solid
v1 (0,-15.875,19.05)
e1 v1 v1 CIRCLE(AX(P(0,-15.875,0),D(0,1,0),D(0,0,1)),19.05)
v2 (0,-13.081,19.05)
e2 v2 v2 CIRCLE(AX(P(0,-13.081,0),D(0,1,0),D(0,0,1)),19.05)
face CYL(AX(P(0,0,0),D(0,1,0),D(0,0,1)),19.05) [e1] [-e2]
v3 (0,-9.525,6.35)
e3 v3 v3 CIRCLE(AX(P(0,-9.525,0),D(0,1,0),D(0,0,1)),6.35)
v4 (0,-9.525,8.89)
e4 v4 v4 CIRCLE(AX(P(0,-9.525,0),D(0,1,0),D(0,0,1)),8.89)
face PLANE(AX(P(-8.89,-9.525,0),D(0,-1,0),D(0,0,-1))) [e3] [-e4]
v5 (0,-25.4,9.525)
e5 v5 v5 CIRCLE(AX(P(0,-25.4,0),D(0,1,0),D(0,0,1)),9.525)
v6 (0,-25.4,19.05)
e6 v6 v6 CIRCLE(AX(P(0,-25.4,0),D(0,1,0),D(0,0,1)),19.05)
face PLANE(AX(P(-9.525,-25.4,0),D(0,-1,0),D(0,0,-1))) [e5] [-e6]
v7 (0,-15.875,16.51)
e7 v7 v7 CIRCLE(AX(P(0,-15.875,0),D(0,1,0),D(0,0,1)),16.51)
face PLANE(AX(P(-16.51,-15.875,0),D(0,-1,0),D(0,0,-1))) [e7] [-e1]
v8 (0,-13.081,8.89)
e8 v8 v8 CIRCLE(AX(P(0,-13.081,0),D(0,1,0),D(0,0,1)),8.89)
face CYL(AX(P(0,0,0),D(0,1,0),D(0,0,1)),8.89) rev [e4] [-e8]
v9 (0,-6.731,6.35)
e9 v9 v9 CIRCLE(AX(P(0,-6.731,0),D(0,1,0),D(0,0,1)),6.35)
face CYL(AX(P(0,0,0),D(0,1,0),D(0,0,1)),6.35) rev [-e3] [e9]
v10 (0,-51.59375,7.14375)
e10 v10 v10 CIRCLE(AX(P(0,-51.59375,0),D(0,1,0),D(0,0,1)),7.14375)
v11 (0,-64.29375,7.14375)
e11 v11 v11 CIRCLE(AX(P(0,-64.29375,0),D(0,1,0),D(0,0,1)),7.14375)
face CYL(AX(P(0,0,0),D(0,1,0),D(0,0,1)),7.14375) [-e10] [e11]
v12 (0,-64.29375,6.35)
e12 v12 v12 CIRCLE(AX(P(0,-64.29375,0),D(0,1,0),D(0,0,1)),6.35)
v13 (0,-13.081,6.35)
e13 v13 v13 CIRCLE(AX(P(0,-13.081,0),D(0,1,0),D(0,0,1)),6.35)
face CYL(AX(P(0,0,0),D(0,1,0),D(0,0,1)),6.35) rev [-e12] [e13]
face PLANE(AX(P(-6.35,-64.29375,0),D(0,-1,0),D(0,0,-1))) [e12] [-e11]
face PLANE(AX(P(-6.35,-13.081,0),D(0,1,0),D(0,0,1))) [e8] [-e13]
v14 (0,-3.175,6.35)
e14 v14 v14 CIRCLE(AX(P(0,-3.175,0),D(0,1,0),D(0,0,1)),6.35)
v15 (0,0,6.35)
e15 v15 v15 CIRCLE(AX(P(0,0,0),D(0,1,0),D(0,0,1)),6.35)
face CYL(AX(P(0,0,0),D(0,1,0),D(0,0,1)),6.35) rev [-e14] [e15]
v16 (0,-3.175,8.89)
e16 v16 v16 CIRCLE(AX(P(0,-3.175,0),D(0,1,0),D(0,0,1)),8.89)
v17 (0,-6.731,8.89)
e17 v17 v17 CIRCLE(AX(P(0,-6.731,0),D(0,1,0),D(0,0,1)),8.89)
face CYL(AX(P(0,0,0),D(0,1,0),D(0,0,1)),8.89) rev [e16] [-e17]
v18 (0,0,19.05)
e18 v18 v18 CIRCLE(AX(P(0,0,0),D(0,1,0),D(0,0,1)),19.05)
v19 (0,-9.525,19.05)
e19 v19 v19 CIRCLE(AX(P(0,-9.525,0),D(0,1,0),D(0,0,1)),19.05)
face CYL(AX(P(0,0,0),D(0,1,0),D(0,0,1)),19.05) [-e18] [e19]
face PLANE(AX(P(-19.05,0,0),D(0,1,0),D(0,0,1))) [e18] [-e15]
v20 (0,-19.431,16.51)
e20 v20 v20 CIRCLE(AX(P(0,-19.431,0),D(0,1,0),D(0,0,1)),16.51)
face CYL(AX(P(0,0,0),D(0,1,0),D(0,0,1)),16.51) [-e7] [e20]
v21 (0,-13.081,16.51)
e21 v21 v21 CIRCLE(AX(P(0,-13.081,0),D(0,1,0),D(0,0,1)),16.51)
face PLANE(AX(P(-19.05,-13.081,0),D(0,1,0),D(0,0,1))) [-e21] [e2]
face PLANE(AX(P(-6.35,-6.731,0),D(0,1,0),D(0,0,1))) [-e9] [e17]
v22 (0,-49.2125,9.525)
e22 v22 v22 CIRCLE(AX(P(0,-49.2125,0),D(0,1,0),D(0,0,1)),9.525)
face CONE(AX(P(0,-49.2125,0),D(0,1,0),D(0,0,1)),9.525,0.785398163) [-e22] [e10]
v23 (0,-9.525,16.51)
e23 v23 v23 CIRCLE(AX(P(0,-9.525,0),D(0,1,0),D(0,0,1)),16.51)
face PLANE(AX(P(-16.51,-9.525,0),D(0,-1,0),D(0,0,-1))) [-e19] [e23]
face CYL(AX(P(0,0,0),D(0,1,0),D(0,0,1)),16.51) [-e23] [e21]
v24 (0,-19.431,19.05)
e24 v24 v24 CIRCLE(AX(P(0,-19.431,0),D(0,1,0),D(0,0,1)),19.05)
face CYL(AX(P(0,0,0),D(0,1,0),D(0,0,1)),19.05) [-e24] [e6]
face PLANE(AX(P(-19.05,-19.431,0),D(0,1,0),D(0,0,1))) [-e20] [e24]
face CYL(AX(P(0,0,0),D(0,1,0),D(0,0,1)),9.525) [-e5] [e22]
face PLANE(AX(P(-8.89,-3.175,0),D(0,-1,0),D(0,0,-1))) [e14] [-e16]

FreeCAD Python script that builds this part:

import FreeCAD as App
import Part
import Sketcher
from FreeCAD import Vector
Q = App.Units.Quantity

doc = App.newDocument("Part")
body = doc.addObject("PartDesign::Body", "Body")

# Sketch on XY plane
sketch1 = body.newObject("Sketcher::SketchObject", "Sketch")
sketch1.AttachmentSupport = (doc.getObject("XY_Plane"), [""])
sketch1.MapMode = "FlatFace"
sketch1.addGeometry(Part.LineSegment(Vector(-6.3, -64.3, 0), Vector(-6.3, -13.1, 0)), False)
sketch1.addGeometry(Part.LineSegment(Vector(-6.3, -13.1, 0), Vector(-8.9, -13.1, 0)), False)
sketch1.addGeometry(Part.LineSegment(Vector(-8.9, -13.1, 0), Vector(-8.9, -9.5, 0)), False)
sketch1.addGeometry(Part.LineSegment(Vector(-8.9, -9.5, 0), Vector(-6.3, -9.5, 0)), False)
sketch1.addGeometry(Part.LineSegment(Vector(-6.3, -9.5, 0), Vector(-6.3, -6.7, 0)), False)
sketch1.addGeometry(Part.LineSegment(Vector(-6.3, -6.7, 0), Vector(-8.9, -6.7, 0)), False)
sketch1.addGeometry(Part.LineSegment(Vector(-8.9, -6.7, 0), Vector(-8.9, -3.2, 0)), False)
sketch1.addGeometry(Part.LineSegment(Vector(-8.9, -3.2, 0), Vector(-6.3, -3.2, 0)), False)
sketch1.addGeometry(Part.LineSegment(Vector(-6.3, -3.2, 0), Vector(-6.3, 0, 0)), False)
sketch1.addGeometry(Part.LineSegment(Vector(-6.3, 0, 0), Vector(-19.1, 0, 0)), False)
sketch1.addGeometry(Part.LineSegment(Vector(-19.1, 0, 0), Vector(-19.1, -9.5, 0)), False)
sketch1.addGeometry(Part.LineSegment(Vector(-19.1, -9.5, 0), Vector(-16.5, -9.5, 0)), False)
sketch1.addGeometry(Part.LineSegment(Vector(-16.5, -9.5, 0), Vector(-16.5, -13.1, 0)), False)
sketch1.addGeometry(Part.LineSegment(Vector(-16.5, -13.1, 0), Vector(-19.1, -13.1, 0)), False)
sketch1.addGeometry(Part.LineSegment(Vector(-19.1, -13.1, 0), Vector(-19.1, -15.9, 0)), False)
sketch1.addGeometry(Part.LineSegment(Vector(-19.1, -15.9, 0), Vector(-16.5, -15.9, 0)), False)
sketch1.addGeometry(Part.LineSegment(Vector(-16.5, -15.9, 0), Vector(-16.5, -19.4, 0)), False)
sketch1.addGeometry(Part.LineSegment(Vector(-16.5, -19.4, 0), Vector(-19.1, -19.4, 0)), False)
sketch1.addGeometry(Part.LineSegment(Vector(-19.1, -19.4, 0), Vector(-19.1, -25.4, 0)), False)
sketch1.addGeometry(Part.LineSegment(Vector(-19.1, -25.4, 0), Vector(-9.5, -25.4, 0)), False)
sketch1.addGeometry(Part.LineSegment(Vector(-9.5, -25.4, 0), Vector(-9.5, -49.2, 0)), False)
sketch1.addGeometry(Part.LineSegment(Vector(-9.5, -49.2, 0), Vector(-7.1, -51.6, 0)), False)
sketch1.addGeometry(Part.LineSegment(Vector(-7.1, -51.6, 0), Vector(-7.1, -64.3, 0)), False)
sketch1.addGeometry(Part.LineSegment(Vector(-7.1, -64.3, 0), Vector(-6.3, -64.3, 0)), False)
sketch1.addConstraint(Sketcher.Constraint("Coincident", 0, 2, 1, 1))
sketch1.addConstraint(Sketcher.Constraint("Coincident", 1, 2, 2, 1))
sketch1.addConstraint(Sketcher.Constraint("Coincident", 2, 2, 3, 1))
sketch1.addConstraint(Sketcher.Constraint("Coincident", 3, 2, 4, 1))
sketch1.addConstraint(Sketcher.Constraint("Coincident", 4, 2, 5, 1))
sketch1.addConstraint(Sketcher.Constraint("Coincident", 5, 2, 6, 1))
sketch1.addConstraint(Sketcher.Constraint("Coincident", 6, 2, 7, 1))
sketch1.addConstraint(Sketcher.Constraint("Coincident", 7, 2, 8, 1))
sketch1.addConstraint(Sketcher.Constraint("Coincident", 8, 2, 9, 1))
sketch1.addConstraint(Sketcher.Constraint("Coincident", 9, 2, 10, 1))
sketch1.addConstraint(Sketcher.Constraint("Coincident", 10, 2, 11, 1))
sketch1.addConstraint(Sketcher.Constraint("Coincident", 11, 2, 12, 1))
sketch1.addConstraint(Sketcher.Constraint("Coincident", 12, 2, 13, 1))
sketch1.addConstraint(Sketcher.Constraint("Coincident", 13, 2, 14, 1))
sketch1.addConstraint(Sketcher.Constraint("Coincident", 14, 2, 15, 1))
sketch1.addConstraint(Sketcher.Constraint("Coincident", 15, 2, 16, 1))
sketch1.addConstraint(Sketcher.Constraint("Coincident", 16, 2, 17, 1))
sketch1.addConstraint(Sketcher.Constraint("Coincident", 17, 2, 18, 1))
sketch1.addConstraint(Sketcher.Constraint("Coincident", 18, 2, 19, 1))
sketch1.addConstraint(Sketcher.Constraint("Coincident", 19, 2, 20, 1))
sketch1.addConstraint(Sketcher.Constraint("Coincident", 20, 2, 21, 1))
sketch1.addConstraint(Sketcher.Constraint("Coincident", 21, 2, 22, 1))
sketch1.addConstraint(Sketcher.Constraint("Coincident", 22, 2, 23, 1))
sketch1.addConstraint(Sketcher.Constraint("Coincident", 23, 2, 0, 1))
sketch1.addConstraint(Sketcher.Constraint("Vertical", 0))
sketch1.addConstraint(Sketcher.Constraint("Horizontal", 1))
sketch1.addConstraint(Sketcher.Constraint("Vertical", 2))
sketch1.addConstraint(Sketcher.Constraint("Horizontal", 3))
sketch1.addConstraint(Sketcher.Constraint("Vertical", 4))
sketch1.addConstraint(Sketcher.Constraint("Horizontal", 5))
sketch1.addConstraint(Sketcher.Constraint("Vertical", 6))
sketch1.addConstraint(Sketcher.Constraint("Horizontal", 7))
sketch1.addConstraint(Sketcher.Constraint("Vertical", 8))
sketch1.addConstraint(Sketcher.Constraint("Horizontal", 9))
sketch1.addConstraint(Sketcher.Constraint("Vertical", 10))
sketch1.addConstraint(Sketcher.Constraint("Horizontal", 11))
sketch1.addConstraint(Sketcher.Constraint("Vertical", 12))
sketch1.addConstraint(Sketcher.Constraint("Horizontal", 13))
sketch1.addConstraint(Sketcher.Constraint("Vertical", 14))
sketch1.addConstraint(Sketcher.Constraint("Horizontal", 15))
sketch1.addConstraint(Sketcher.Constraint("Vertical", 16))
sketch1.addConstraint(Sketcher.Constraint("Horizontal", 17))
sketch1.addConstraint(Sketcher.Constraint("Vertical", 18))
sketch1.addConstraint(Sketcher.Constraint("Horizontal", 19))
sketch1.addConstraint(Sketcher.Constraint("Vertical", 20))
sketch1.addConstraint(Sketcher.Constraint("Vertical", 22))
sketch1.addConstraint(Sketcher.Constraint("Horizontal", 23))
sketch1.addConstraint(Sketcher.Constraint("PointOnObject", 8, 2, -1))
sketch1.addConstraint(Sketcher.Constraint("Horizontal", 3, 2, 10, 2))
sketch1.addConstraint(Sketcher.Constraint("Horizontal", 1, 2, 12, 2))
sketch1.addConstraint(Sketcher.Constraint("Vertical", 0, 2, 3, 2))
sketch1.addConstraint(Sketcher.Constraint("Vertical", 2, 2, 5, 2))
sketch1.addConstraint(Sketcher.Constraint("Vertical", 4, 2, 7, 2))
sketch1.addConstraint(Sketcher.Constraint("Vertical", 10, 2, 13, 2))
sketch1.addConstraint(Sketcher.Constraint("Vertical", 12, 2, 15, 2))
sketch1.addConstraint(Sketcher.Constraint("Vertical", 14, 2, 17, 2))
sketch1.addConstraint(Sketcher.Constraint("Equal", 7, 11))
sketch1.addConstraint(Sketcher.Constraint("Equal", 2, 6))
sketch1.addConstraint(Sketcher.Constraint("Equal", 19, 10))
sketch1.addConstraint(Sketcher.Constraint("Equal", 4, 14))
sketch1.addConstraint(Sketcher.Constraint("Equal", 12, 16))
sketch1.addConstraint(Sketcher.Constraint("Equal", 9, 22))
sketch1.addConstraint(Sketcher.Constraint("DistanceX", 1, 2, 1, 1, Q("0.1 in")))
sketch1.addConstraint(Sketcher.Constraint("DistanceX", 9, 2, 9, 1, Q("0.5 in")))
sketch1.addConstraint(Sketcher.Constraint("DistanceY", 18, 2, -1, 1, Q("1 in")))
sketch1.addConstraint(Sketcher.Constraint("Angle", 21, Q("-45 deg")))
sketch1.addConstraint(Sketcher.Constraint("DistanceY", 2, 1, 2, 2, Q("0.14 in")))
sketch1.addConstraint(Sketcher.Constraint("DistanceY", 4, 1, 4, 2, Q("0.11 in")))
sketch1.addConstraint(Sketcher.Constraint("DistanceX", 19, 1, 19, 2, Q("0.375 in")))
sketch1.addConstraint(Sketcher.Constraint("DistanceX", 23, 1, 23, 2, Q("0.03125 in")))
sketch1.addConstraint(Sketcher.Constraint("DistanceY", 20, 2, 20, 1, Q("0.9375 in")))
sketch1.addConstraint(Sketcher.Constraint("DistanceX", 0, 2, -1, 1, Q("0.25 in")))
revolution = body.newObject("PartDesign::Revolution", "Revolution")
revolution.Profile = sketch1
revolution.ReferenceAxis = (sketch1, ["V_Axis"])
revolution.Angle = 360

doc.recompute()
